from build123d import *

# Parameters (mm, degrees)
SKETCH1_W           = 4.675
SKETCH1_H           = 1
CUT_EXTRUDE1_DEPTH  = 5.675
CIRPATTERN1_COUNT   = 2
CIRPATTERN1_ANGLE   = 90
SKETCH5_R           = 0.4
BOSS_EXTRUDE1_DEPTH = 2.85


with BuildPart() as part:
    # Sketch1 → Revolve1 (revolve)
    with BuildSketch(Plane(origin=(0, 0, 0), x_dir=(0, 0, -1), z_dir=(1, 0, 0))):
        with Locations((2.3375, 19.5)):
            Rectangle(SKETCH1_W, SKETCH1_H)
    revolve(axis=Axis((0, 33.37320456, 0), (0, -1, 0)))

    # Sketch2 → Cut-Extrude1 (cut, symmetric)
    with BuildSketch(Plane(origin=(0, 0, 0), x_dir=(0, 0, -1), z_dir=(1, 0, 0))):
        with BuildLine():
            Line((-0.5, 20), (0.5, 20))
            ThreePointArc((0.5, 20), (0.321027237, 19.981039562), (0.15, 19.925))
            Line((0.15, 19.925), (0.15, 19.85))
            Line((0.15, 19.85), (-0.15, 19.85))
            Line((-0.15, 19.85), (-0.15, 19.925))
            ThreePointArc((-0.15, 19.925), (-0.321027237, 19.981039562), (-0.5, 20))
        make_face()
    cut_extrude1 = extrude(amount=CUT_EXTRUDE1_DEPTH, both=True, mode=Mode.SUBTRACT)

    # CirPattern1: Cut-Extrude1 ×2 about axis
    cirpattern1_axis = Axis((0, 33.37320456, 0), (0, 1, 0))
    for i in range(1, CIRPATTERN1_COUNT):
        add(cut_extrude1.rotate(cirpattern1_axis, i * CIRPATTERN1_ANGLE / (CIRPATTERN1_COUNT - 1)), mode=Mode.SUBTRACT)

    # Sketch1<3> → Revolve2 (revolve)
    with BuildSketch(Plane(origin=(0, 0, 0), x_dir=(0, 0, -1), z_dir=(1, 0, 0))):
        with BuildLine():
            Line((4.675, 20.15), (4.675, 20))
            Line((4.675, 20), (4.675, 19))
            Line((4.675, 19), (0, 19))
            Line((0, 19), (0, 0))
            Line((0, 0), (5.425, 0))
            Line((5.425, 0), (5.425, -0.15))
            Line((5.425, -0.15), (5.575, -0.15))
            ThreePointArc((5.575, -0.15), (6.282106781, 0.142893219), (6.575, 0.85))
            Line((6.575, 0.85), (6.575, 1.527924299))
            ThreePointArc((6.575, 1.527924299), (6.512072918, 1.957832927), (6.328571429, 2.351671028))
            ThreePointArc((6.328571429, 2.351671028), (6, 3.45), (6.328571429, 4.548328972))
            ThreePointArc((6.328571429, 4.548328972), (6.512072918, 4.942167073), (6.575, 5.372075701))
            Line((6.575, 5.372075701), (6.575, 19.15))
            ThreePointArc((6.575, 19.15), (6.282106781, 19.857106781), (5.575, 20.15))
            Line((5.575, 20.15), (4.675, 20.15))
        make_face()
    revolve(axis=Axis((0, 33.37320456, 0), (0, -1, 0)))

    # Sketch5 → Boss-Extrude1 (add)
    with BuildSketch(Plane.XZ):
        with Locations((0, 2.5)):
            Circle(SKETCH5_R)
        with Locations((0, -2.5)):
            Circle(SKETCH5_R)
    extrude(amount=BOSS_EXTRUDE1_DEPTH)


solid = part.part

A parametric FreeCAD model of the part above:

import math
import FreeCAD as App
import Part
import Sketcher

V = App.Vector


def add_polygon(sketch, points):
    """Adds a closed chain of lines whose ends are joined by coincident constraints."""
    first, n = sketch.GeometryCount, len(points)
    for a, b in zip(points, points[1:] + points[:1]):
        sketch.addGeometry(Part.LineSegment(App.Vector(*a, 0), App.Vector(*b, 0)), False)
    for i in range(n):
        sketch.addConstraint(Sketcher.Constraint("Coincident", first + i, 2, first + (i + 1) % n, 1))

doc = App.newDocument("Part")
body = doc.addObject("PartDesign::Body", "Body")

# Sketch on YZ plane
sketch1 = doc.addObject("Sketcher::SketchObject", "Sketch")
body.addObject(sketch1)
sketch1.AttachmentSupport = (doc.YZ_Plane, [""])
sketch1.MapMode = "FlatFace"
add_polygon(sketch1, [(20, 0), (19, 0), (19, -4.7), (20, -4.7)])  # lines 0-3
sketch1.addConstraint(Sketcher.Constraint("Horizontal", 0))
sketch1.addConstraint(Sketcher.Constraint("Vertical", 1))
sketch1.addConstraint(Sketcher.Constraint("Horizontal", 2))
sketch1.addConstraint(Sketcher.Constraint("Vertical", 3))
sketch1.addConstraint(Sketcher.Constraint("PointOnObject", 0, 2, -1))
sketch1.addConstraint(Sketcher.Constraint("DistanceX", 0, 2, 0, 1, 1.0))
sketch1.addConstraint(Sketcher.Constraint("DistanceX", -1, 1, 0, 2, 19.0))
sketch1.addConstraint(Sketcher.Constraint("DistanceY", 1, 2, 1, 1, 4.675))
revolution = doc.addObject("PartDesign::Revolution", "Revolution")
body.addObject(revolution)
revolution.Profile = sketch1
revolution.ReferenceAxis = (sketch1, ["H_Axis"])
revolution.Angle = 360

# Sketch on YZ plane
sketch2 = doc.addObject("Sketcher::SketchObject", "Sketch001")
body.addObject(sketch2)
sketch2.AttachmentSupport = (doc.YZ_Plane, [""])
sketch2.MapMode = "FlatFace"
sketch2.addGeometry(Part.LineSegment(V(20, -0.5, 0), V(20, 0.5, 0)), False)
sketch2.addGeometry(Part.ArcOfCircle(Part.Circle(V(19.15, 0.5, 0), V(0, 0, 1), 0.85), math.radians(-24), math.radians(0)), False)
sketch2.addGeometry(Part.LineSegment(V(19.93, 0.15, 0), V(19.85, 0.15, 0)), False)
sketch2.addGeometry(Part.LineSegment(V(19.85, 0.15, 0), V(19.85, -0.15, 0)), False)
sketch2.addGeometry(Part.LineSegment(V(19.85, -0.15, 0), V(19.93, -0.15, 0)), False)
sketch2.addGeometry(Part.ArcOfCircle(Part.Circle(V(19.15, -0.5, 0), V(0, 0, 1), 0.85), math.radians(0), math.radians(24)), False)
sketch2.addConstraint(Sketcher.Constraint("Tangent", 0, 2, 1, 2))
sketch2.addConstraint(Sketcher.Constraint("Coincident", 1, 1, 2, 1))
sketch2.addConstraint(Sketcher.Constraint("Coincident", 2, 2, 3, 1))
sketch2.addConstraint(Sketcher.Constraint("Coincident", 3, 2, 4, 1))
sketch2.addConstraint(Sketcher.Constraint("Coincident", 4, 2, 5, 2))
sketch2.addConstraint(Sketcher.Constraint("Tangent", 5, 1, 0, 1))
sketch2.addConstraint(Sketcher.Constraint("Vertical", 0))
sketch2.addConstraint(Sketcher.Constraint("Horizontal", 2))
sketch2.addConstraint(Sketcher.Constraint("Vertical", 3))
sketch2.addConstraint(Sketcher.Constraint("Horizontal", 4))
sketch2.addConstraint(Sketcher.Constraint("Equal", 1, 5))
sketch2.addConstraint(Sketcher.Constraint("Symmetric", 1, 1, 4, 2, -1))
sketch2.addConstraint(Sketcher.Constraint("DistanceY", 0, 1, 0, 2, 1.0))
sketch2.addConstraint(Sketcher.Constraint("DistanceY", 3, 2, 3, 1, 0.3))
sketch2.addConstraint(Sketcher.Constraint("DistanceX", -1, 1, 0, 2, 20.0))
sketch2.addConstraint(Sketcher.Constraint("DistanceX", 2, 2, 2, 1, 0.075))
sketch2.addConstraint(Sketcher.Constraint("DistanceX", -1, 1, 2, 2, 19.85))
pocket1 = doc.addObject("PartDesign::Pocket", "Pocket")
body.addObject(pocket1)
pocket1.Profile = sketch2
pocket1.Length = 11.35
pocket1.Midplane = True
doc.recompute()

polarpattern = doc.addObject("PartDesign::PolarPattern", "PolarPattern")
body.addObject(polarpattern)
polarpattern.Originals = [pocket1]
polarpattern.Axis = (doc.Y_Axis, [""])
polarpattern.Angle = 90
polarpattern.Occurrences = 2
body.Tip = polarpattern

# Sketch on YZ plane
sketch3 = doc.addObject("Sketcher::SketchObject", "Sketch002")
body.addObject(sketch3)
sketch3.AttachmentSupport = (doc.YZ_Plane, [""])
sketch3.MapMode = "FlatFace"
sketch3.addGeometry(Part.LineSegment(V(20.15, -4.67, 0), V(19, -4.67, 0)), False)
sketch3.addGeometry(Part.LineSegment(V(19, -4.67, 0), V(19, 0, 0)), False)
sketch3.addGeometry(Part.LineSegment(V(19, 0, 0), V(0, 0, 0)), False)
sketch3.addGeometry(Part.LineSegment(V(0, 0, 0), V(0, -5.42, 0)), False)
sketch3.addGeometry(Part.LineSegment(V(0, -5.42, 0), V(-0.15, -5.42, 0)), False)
sketch3.addGeometry(Part.LineSegment(V(-0.15, -5.42, 0), V(-0.15, -5.58, 0)), False)
sketch3.addGeometry(Part.ArcOfCircle(Part.Circle(V(0.85, -5.57, 0), V(0, 0, 1), 1), math.radians(-180), math.radians(-90)), False)
sketch3.addGeometry(Part.LineSegment(V(0.85, -6.58, 0), V(1.53, -6.58, 0)), False)
sketch3.addGeometry(Part.ArcOfCircle(Part.Circle(V(1.53, -5.07, 0), V(0, 0, 1), 1.5), math.radians(-90), math.radians(-57)), False)
sketch3.addGeometry(Part.ArcOfCircle(Part.Circle(V(3.45, -8, 0), V(0, 0, 1), 2), math.radians(57), math.radians(123)), False)
sketch3.addGeometry(Part.ArcOfCircle(Part.Circle(V(5.37, -5.07, 0), V(0, 0, 1), 1.5), math.radians(-123), math.radians(-90)), False)
sketch3.addGeometry(Part.LineSegment(V(5.37, -6.58, 0), V(19.15, -6.58, 0)), False)
sketch3.addGeometry(Part.ArcOfCircle(Part.Circle(V(19.15, -5.57, 0), V(0, 0, 1), 1), math.radians(-90), math.radians(0)), False)
sketch3.addGeometry(Part.LineSegment(V(20.15, -5.58, 0), V(20.15, -4.67, 0)), False)
sketch3.addConstraint(Sketcher.Constraint("Coincident", 0, 2, 1, 1))
sketch3.addConstraint(Sketcher.Constraint("Coincident", 1, 2, 2, 1))
sketch3.addConstraint(Sketcher.Constraint("Coincident", 2, 2, 3, 1))
sketch3.addConstraint(Sketcher.Constraint("Coincident", 3, 2, 4, 1))
sketch3.addConstraint(Sketcher.Constraint("Coincident", 4, 2, 5, 1))
sketch3.addConstraint(Sketcher.Constraint("Tangent", 5, 2, 6, 1))
sketch3.addConstraint(Sketcher.Constraint("Tangent", 6, 2, 7, 1))
sketch3.addConstraint(Sketcher.Constraint("Tangent", 7, 2, 8, 1))
sketch3.addConstraint(Sketcher.Constraint("Tangent", 8, 2, 9, 2))
sketch3.addConstraint(Sketcher.Constraint("Tangent", 9, 1, 10, 1))
sketch3.addConstraint(Sketcher.Constraint("Tangent", 10, 2, 11, 1))
sketch3.addConstraint(Sketcher.Constraint("Tangent", 11, 2, 12, 1))
sketch3.addConstraint(Sketcher.Constraint("Tangent", 12, 2, 13, 1))
sketch3.addConstraint(Sketcher.Constraint("Coincident", 13, 2, 0, 1))
sketch3.addConstraint(Sketcher.Constraint("Horizontal", 0))
sketch3.addConstraint(Sketcher.Constraint("Vertical", 1))
sketch3.addConstraint(Sketcher.Constraint("Horizontal", 2))
sketch3.addConstraint(Sketcher.Constraint("Vertical", 3))
sketch3.addConstraint(Sketcher.Constraint("Horizontal", 4))
sketch3.addConstraint(Sketcher.Constraint("Vertical", 5))
sketch3.addConstraint(Sketcher.Constraint("Horizontal", 7))
sketch3.addConstraint(Sketcher.Constraint("Horizontal", 11))
sketch3.addConstraint(Sketcher.Constraint("Vertical", 13))
sketch3.addConstraint(Sketcher.Constraint("Coincident", 2, 2, -1, 1))
sketch3.addConstraint(Sketcher.Constraint("Equal", 8, 10))
sketch3.addConstraint(Sketcher.Constraint("Equal", 6, 12))
sketch3.addConstraint(Sketcher.Constraint("Horizontal", 8, 3, 10, 3))
sketch3.addConstraint(Sketcher.Constraint("Equal", 4, 5))
sketch3.addConstraint(Sketcher.Constraint("Radius", 6, 1.0))
sketch3.addConstraint(Sketcher.Constraint("Radius", 9, 2.0))
sketch3.addConstraint(Sketcher.Constraint("Radius", 8, 1.5))
sketch3.addConstraint(Sketcher.Constraint("DistanceX", 2, 2, 2, 1, 19.0))
sketch3.addConstraint(Sketcher.Constraint("DistanceY", 13, 1, 13, 2, 0.9))
sketch3.addConstraint(Sketcher.Constraint("DistanceY", 9, 3, -1, 1, 8.0))
sketch3.addConstraint(Sketcher.Constraint("DistanceX", 0, 2, 0, 1, 1.15))
sketch3.addConstraint(Sketcher.Constraint("DistanceX", 4, 2, 4, 1, 0.15))
sketch3.addConstraint(Sketcher.Constraint("DistanceX", 6, 3, 9, 3, 2.6))
sketch3.addConstraint(Sketcher.Constraint("DistanceY", 1, 1, 1, 2, 4.675))
revolution2 = doc.addObject("PartDesign::Revolution", "Revolution001")
body.addObject(revolution2)
revolution2.Profile = sketch3
revolution2.ReferenceAxis = (sketch3, ["H_Axis"])
revolution2.Angle = 360

# Sketch on XZ plane
sketch4 = doc.addObject("Sketcher::SketchObject", "Sketch003")
body.addObject(sketch4)
sketch4.AttachmentSupport = (doc.XZ_Plane, [""])
sketch4.MapMode = "FlatFace"
sketch4.addGeometry(Part.Circle(V(0, 2.5, 0), V(0, 0, 1), 0.4), False)
sketch4.addGeometry(Part.Circle(V(0, -2.5, 0), V(0, 0, 1), 0.4), False)
sketch4.addConstraint(Sketcher.Constraint("Equal", 0, 1))
sketch4.addConstraint(Sketcher.Constraint("Symmetric", 0, 3, 1, 3, -1, 1))
sketch4.addConstraint(Sketcher.Constraint("PointOnObject", 0, 3, -2))
sketch4.addConstraint(Sketcher.Constraint("Diameter", 0, 0.8))
sketch4.addConstraint(Sketcher.Constraint("DistanceY", 1, 3, 0, 3, 5.0))
pad1 = doc.addObject("PartDesign::Pad", "Pad")
body.addObject(pad1)
pad1.Profile = sketch4
pad1.Length = 2.85

doc.recompute()
